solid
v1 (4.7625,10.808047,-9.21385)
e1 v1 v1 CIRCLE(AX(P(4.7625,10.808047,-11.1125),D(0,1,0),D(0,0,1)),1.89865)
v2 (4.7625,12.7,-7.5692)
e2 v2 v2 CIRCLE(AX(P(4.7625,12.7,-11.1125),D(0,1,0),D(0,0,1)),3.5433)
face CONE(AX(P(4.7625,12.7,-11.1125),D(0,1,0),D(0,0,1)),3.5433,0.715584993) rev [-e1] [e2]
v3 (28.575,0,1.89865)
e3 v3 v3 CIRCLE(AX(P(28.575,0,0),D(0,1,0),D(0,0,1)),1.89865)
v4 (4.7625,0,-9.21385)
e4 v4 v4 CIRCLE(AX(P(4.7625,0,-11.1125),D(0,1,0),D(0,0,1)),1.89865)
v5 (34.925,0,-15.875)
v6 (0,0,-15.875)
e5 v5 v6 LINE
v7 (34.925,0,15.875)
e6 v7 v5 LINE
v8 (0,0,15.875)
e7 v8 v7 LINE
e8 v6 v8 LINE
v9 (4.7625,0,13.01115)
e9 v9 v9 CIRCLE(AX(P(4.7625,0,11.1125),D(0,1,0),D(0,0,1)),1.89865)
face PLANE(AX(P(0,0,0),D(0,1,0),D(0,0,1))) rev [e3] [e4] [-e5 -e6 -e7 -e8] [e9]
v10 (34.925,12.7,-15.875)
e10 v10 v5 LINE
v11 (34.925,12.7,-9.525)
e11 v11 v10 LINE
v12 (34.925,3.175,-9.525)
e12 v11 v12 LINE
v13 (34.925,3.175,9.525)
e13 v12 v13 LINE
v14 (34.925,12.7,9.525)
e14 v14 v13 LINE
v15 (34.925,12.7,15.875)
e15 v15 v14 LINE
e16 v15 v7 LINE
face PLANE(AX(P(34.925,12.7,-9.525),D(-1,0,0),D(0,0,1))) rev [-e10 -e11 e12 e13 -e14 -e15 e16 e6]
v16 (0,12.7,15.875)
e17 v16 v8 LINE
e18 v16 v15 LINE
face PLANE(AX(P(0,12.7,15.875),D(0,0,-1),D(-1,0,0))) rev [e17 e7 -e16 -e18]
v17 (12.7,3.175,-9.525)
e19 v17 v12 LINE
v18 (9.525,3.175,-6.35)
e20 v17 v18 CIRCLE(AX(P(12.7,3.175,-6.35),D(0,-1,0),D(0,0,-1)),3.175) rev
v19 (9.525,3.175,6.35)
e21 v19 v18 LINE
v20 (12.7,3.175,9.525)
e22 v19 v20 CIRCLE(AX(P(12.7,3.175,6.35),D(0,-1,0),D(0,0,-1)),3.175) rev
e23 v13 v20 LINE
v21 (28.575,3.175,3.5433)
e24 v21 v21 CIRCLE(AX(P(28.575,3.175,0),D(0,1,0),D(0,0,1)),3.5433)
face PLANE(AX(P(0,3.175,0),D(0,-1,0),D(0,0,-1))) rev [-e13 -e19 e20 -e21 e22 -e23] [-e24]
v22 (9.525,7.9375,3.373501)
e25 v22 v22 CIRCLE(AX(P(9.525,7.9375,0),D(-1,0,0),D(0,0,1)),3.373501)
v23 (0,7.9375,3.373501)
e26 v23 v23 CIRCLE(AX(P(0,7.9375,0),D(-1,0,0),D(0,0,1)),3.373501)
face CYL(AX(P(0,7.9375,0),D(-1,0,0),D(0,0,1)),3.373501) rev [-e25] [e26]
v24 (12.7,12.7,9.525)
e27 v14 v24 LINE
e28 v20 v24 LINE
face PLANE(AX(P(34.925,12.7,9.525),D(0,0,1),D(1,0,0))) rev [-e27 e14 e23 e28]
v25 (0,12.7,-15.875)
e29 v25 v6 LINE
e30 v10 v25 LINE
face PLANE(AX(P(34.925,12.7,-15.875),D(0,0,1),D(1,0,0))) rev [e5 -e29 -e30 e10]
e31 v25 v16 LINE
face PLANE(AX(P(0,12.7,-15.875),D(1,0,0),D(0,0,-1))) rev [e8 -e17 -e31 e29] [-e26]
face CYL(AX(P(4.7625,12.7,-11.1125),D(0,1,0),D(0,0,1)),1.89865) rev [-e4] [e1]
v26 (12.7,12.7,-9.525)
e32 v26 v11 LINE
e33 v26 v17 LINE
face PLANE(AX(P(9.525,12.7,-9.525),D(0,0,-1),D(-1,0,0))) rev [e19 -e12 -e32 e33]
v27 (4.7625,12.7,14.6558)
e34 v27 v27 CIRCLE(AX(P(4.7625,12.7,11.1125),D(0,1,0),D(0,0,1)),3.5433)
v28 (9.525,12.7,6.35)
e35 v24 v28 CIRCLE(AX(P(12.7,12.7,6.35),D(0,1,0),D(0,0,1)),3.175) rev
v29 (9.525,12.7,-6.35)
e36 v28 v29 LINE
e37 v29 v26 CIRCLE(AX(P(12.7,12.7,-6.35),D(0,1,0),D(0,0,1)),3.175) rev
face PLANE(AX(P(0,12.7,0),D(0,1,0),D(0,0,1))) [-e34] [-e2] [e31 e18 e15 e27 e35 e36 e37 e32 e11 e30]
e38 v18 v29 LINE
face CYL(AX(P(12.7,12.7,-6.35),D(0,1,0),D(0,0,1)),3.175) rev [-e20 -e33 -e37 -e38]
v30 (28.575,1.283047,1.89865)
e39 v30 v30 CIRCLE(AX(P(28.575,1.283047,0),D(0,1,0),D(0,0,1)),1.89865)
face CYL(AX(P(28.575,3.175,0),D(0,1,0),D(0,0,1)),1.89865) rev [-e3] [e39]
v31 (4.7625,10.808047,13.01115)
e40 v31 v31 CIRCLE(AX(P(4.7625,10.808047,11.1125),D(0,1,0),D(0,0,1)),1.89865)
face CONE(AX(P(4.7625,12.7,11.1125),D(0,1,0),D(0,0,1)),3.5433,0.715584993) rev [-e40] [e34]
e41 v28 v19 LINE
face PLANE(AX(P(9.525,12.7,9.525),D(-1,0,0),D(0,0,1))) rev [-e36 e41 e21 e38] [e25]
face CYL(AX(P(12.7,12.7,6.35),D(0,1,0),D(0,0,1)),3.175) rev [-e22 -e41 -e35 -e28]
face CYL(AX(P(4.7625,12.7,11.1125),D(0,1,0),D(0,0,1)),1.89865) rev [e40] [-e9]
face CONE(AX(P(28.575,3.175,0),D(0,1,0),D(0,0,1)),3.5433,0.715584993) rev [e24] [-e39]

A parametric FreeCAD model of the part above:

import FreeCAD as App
import Part
import Sketcher
from FreeCAD import Vector
Q = App.Units.Quantity


def edges_at(feature, points):
    """Names of the edges that pass closest to the given points."""
    edges = feature.Shape.Edges
    near = lambda p: min(range(len(edges)), key=lambda i: edges[i].distToShape(Part.Vertex(*p))[0])
    return sorted({f"Edge{near(p) + 1}" for p in points})

doc = App.newDocument("Part")
body = doc.addObject("PartDesign::Body", "Body")

sketch1 = body.newObject("Sketcher::SketchObject", "Sketch")
sketch1.AttachmentSupport = (doc.getObject("XZ_Plane"), [""])
sketch1.MapMode = "FlatFace"
sketch1.addGeometry([
    Part.LineSegment(Vector(0, -16, 0), Vector(0, 16, 0)),
    Part.LineSegment(Vector(0, 16, 0), Vector(35, 16, 0)),
    Part.LineSegment(Vector(35, 16, 0), Vector(35, 10, 0)),
    Part.LineSegment(Vector(35, 10, 0), Vector(10, 10, 0)),
    Part.LineSegment(Vector(10, 10, 0), Vector(10, -10, 0)),
    Part.LineSegment(Vector(10, -10, 0), Vector(35, -10, 0)),
    Part.LineSegment(Vector(35, -10, 0), Vector(35, -16, 0)),
    Part.LineSegment(Vector(35, -16, 0), Vector(0, -16, 0)),
], False)
sketch1.addConstraint([
    Sketcher.Constraint("Coincident", 0, 2, 1, 1),
    Sketcher.Constraint("Coincident", 1, 2, 2, 1),
    Sketcher.Constraint("Coincident", 2, 2, 3, 1),
    Sketcher.Constraint("Coincident", 3, 2, 4, 1),
    Sketcher.Constraint("Coincident", 4, 2, 5, 1),
    Sketcher.Constraint("Coincident", 5, 2, 6, 1),
    Sketcher.Constraint("Coincident", 6, 2, 7, 1),
    Sketcher.Constraint("Coincident", 7, 2, 0, 1),
    Sketcher.Constraint("Vertical", 0),
    Sketcher.Constraint("Horizontal", 1),
    Sketcher.Constraint("Vertical", 2),
    Sketcher.Constraint("Horizontal", 3),
    Sketcher.Constraint("Vertical", 4),
    Sketcher.Constraint("Horizontal", 5),
    Sketcher.Constraint("Vertical", 6),
    Sketcher.Constraint("Horizontal", 7),
    Sketcher.Constraint("Symmetric", 0, 2, 7, 2, -1, 1),
    Sketcher.Constraint("Symmetric", 2, 2, 5, 2, -1),
    Sketcher.Constraint("DistanceX", 3, 2, 3, 1, Q("1 in")),
    Sketcher.Constraint("DistanceY", 4, 2, 0, 2, Q("1 in")),
    Sketcher.Constraint("DistanceY", 0, 1, 0, 2, Q("1.25 in")),
    Sketcher.Constraint("DistanceX", 1, 1, 1, 2, Q("1.375 in")),
])
pad1 = body.newObject("PartDesign::Pad", "Pad")
pad1.Profile = sketch1
pad1.Length = Q("0.5 in")
pad1.Reversed = True

sketch2 = body.newObject("Sketcher::SketchObject", "Sketch001")
sketch2.AttachmentSupport = (doc.getObject("XZ_Plane"), [""])
sketch2.MapMode = "FlatFace"
sketch2.addGeometry([
    Part.LineSegment(Vector(10, 10, 0), Vector(10, -10, 0)),
    Part.LineSegment(Vector(10, -10, 0), Vector(35, -10, 0)),
    Part.LineSegment(Vector(35, -10, 0), Vector(35, 10, 0)),
    Part.LineSegment(Vector(35, 10, 0), Vector(10, 10, 0)),
], False)
sketch2.addConstraint([
    Sketcher.Constraint("Coincident", 0, 2, 1, 1),
    Sketcher.Constraint("Coincident", 1, 2, 2, 1),
    Sketcher.Constraint("Coincident", 2, 2, 3, 1),
    Sketcher.Constraint("Coincident", 3, 2, 0, 1),
    Sketcher.Constraint("Vertical", 0),
    Sketcher.Constraint("Horizontal", 1),
    Sketcher.Constraint("Vertical", 2),
    Sketcher.Constraint("Horizontal", 3),
    Sketcher.Constraint("DistanceX", 1, 1, 1, 2, Q("1 in")),
    Sketcher.Constraint("DistanceY", 0, 2, 0, 1, Q("0.75 in")),
    Sketcher.Constraint("DistanceX", -1, 1, 0, 2, Q("0.375 in")),
    Sketcher.Constraint("DistanceY", 0, 2, -1, 1, Q("0.375 in")),
])
pad2 = body.newObject("PartDesign::Pad", "Pad001")
pad2.Profile = sketch2
pad2.Length = Q("0.125 in")
pad2.Reversed = True
doc.recompute()

fillet = body.newObject("PartDesign::Fillet", "Fillet")
fillet.Base = (pad2, edges_at(pad2, [(9.525, 7.938, -9.525), (9.525, 7.938, 9.525)]))
fillet.Radius = Q("0.125 in")

sketch3 = body.newObject("Sketcher::SketchObject", "Sketch002")
sketch3.AttachmentSupport = (doc.getObject("YZ_Plane"), [""])
sketch3.MapMode = "FlatFace"
sketch3.addGeometry(Part.Circle(Vector(7.9, 0, 0), Vector(0, 0, 1), 3.4), False)
sketch3.addConstraint([
    Sketcher.Constraint("PointOnObject", 0, 3, -1),
    Sketcher.Constraint("DistanceX", -1, 1, 0, 3, Q("0.3125 in")),
    Sketcher.Constraint("Diameter", 0, 6.747002),
])
doc.recompute()
hole = body.newObject("PartDesign::Hole", "Hole")
hole.Profile = sketch3
hole.ThreadType = "None"
hole.Diameter = 6.747002
hole.DepthType = "ThroughAll"
hole.Reversed = True

sketch4 = body.newObject("Sketcher::SketchObject", "Sketch003")
sketch4.AttachmentSupport = (doc.getObject("XZ_Plane"), [""])
sketch4.MapMode = "FlatFace"
sketch4.AttachmentOffset = App.Placement(Vector(0, 0, -0.5 * 25.4), App.Rotation())
sketch4.addGeometry([
    Part.Circle(Vector(4.8, 11.1, 0), Vector(0, 0, 1), 1.9),
    Part.Circle(Vector(4.8, -11.1, 0), Vector(0, 0, 1), 1.9),
], False)
sketch4.addConstraint([
    Sketcher.Constraint("Equal", 0, 1),
    Sketcher.Constraint("Symmetric", 0, 3, 1, 3, -1),
    Sketcher.Constraint("Diameter", 0, Q("0.1495 in")),
    Sketcher.Constraint("DistanceX", -1, 1, 0, 3, Q("0.1875 in")),
    Sketcher.Constraint("DistanceY", -1, 1, 0, 3, Q("0.4375 in")),
])
doc.recompute()
hole2 = body.newObject("PartDesign::Hole", "Hole001")
hole2.Profile = sketch4
hole2.ThreadType = "None"
hole2.Diameter = Q("0.1495 in")
hole2.DepthType = "Dimension"
hole2.Depth = Q("0.65 in")
hole2.DrillPoint = "Angled"
hole2.DrillPointAngle = 118
hole2.HoleCutType = "Countersink"
hole2.HoleCutDiameter = Q("0.279 in")
hole2.HoleCutCountersinkAngle = 82
hole2.Reversed = True

sketch5 = body.newObject("Sketcher::SketchObject", "Sketch004")
sketch5.AttachmentSupport = (doc.getObject("XZ_Plane"), [""])
sketch5.MapMode = "FlatFace"
sketch5.AttachmentOffset = App.Placement(Vector(0, 0, -0.125 * 25.4), App.Rotation())
sketch5.addGeometry(Part.Circle(Vector(28.6, 0, 0), Vector(0, 0, 1), 1.9), False)
sketch5.addConstraint([
    Sketcher.Constraint("PointOnObject", 0, 3, -1),
    Sketcher.Constraint("Diameter", 0, Q("0.1495 in")),
    Sketcher.Constraint("DistanceX", -1, 1, 0, 3, Q("1.125 in")),
])
doc.recompute()
hole3 = body.newObject("PartDesign::Hole", "Hole002")
hole3.Profile = sketch5
hole3.ThreadType = "None"
hole3.Diameter = Q("0.1495 in")
hole3.DepthType = "Dimension"
hole3.Depth = Q("0.65 in")
hole3.DrillPoint = "Angled"
hole3.DrillPointAngle = 118
hole3.HoleCutType = "Countersink"
hole3.HoleCutDiameter = Q("0.279 in")
hole3.HoleCutCountersinkAngle = 82
hole3.Reversed = True

doc.recompute()
